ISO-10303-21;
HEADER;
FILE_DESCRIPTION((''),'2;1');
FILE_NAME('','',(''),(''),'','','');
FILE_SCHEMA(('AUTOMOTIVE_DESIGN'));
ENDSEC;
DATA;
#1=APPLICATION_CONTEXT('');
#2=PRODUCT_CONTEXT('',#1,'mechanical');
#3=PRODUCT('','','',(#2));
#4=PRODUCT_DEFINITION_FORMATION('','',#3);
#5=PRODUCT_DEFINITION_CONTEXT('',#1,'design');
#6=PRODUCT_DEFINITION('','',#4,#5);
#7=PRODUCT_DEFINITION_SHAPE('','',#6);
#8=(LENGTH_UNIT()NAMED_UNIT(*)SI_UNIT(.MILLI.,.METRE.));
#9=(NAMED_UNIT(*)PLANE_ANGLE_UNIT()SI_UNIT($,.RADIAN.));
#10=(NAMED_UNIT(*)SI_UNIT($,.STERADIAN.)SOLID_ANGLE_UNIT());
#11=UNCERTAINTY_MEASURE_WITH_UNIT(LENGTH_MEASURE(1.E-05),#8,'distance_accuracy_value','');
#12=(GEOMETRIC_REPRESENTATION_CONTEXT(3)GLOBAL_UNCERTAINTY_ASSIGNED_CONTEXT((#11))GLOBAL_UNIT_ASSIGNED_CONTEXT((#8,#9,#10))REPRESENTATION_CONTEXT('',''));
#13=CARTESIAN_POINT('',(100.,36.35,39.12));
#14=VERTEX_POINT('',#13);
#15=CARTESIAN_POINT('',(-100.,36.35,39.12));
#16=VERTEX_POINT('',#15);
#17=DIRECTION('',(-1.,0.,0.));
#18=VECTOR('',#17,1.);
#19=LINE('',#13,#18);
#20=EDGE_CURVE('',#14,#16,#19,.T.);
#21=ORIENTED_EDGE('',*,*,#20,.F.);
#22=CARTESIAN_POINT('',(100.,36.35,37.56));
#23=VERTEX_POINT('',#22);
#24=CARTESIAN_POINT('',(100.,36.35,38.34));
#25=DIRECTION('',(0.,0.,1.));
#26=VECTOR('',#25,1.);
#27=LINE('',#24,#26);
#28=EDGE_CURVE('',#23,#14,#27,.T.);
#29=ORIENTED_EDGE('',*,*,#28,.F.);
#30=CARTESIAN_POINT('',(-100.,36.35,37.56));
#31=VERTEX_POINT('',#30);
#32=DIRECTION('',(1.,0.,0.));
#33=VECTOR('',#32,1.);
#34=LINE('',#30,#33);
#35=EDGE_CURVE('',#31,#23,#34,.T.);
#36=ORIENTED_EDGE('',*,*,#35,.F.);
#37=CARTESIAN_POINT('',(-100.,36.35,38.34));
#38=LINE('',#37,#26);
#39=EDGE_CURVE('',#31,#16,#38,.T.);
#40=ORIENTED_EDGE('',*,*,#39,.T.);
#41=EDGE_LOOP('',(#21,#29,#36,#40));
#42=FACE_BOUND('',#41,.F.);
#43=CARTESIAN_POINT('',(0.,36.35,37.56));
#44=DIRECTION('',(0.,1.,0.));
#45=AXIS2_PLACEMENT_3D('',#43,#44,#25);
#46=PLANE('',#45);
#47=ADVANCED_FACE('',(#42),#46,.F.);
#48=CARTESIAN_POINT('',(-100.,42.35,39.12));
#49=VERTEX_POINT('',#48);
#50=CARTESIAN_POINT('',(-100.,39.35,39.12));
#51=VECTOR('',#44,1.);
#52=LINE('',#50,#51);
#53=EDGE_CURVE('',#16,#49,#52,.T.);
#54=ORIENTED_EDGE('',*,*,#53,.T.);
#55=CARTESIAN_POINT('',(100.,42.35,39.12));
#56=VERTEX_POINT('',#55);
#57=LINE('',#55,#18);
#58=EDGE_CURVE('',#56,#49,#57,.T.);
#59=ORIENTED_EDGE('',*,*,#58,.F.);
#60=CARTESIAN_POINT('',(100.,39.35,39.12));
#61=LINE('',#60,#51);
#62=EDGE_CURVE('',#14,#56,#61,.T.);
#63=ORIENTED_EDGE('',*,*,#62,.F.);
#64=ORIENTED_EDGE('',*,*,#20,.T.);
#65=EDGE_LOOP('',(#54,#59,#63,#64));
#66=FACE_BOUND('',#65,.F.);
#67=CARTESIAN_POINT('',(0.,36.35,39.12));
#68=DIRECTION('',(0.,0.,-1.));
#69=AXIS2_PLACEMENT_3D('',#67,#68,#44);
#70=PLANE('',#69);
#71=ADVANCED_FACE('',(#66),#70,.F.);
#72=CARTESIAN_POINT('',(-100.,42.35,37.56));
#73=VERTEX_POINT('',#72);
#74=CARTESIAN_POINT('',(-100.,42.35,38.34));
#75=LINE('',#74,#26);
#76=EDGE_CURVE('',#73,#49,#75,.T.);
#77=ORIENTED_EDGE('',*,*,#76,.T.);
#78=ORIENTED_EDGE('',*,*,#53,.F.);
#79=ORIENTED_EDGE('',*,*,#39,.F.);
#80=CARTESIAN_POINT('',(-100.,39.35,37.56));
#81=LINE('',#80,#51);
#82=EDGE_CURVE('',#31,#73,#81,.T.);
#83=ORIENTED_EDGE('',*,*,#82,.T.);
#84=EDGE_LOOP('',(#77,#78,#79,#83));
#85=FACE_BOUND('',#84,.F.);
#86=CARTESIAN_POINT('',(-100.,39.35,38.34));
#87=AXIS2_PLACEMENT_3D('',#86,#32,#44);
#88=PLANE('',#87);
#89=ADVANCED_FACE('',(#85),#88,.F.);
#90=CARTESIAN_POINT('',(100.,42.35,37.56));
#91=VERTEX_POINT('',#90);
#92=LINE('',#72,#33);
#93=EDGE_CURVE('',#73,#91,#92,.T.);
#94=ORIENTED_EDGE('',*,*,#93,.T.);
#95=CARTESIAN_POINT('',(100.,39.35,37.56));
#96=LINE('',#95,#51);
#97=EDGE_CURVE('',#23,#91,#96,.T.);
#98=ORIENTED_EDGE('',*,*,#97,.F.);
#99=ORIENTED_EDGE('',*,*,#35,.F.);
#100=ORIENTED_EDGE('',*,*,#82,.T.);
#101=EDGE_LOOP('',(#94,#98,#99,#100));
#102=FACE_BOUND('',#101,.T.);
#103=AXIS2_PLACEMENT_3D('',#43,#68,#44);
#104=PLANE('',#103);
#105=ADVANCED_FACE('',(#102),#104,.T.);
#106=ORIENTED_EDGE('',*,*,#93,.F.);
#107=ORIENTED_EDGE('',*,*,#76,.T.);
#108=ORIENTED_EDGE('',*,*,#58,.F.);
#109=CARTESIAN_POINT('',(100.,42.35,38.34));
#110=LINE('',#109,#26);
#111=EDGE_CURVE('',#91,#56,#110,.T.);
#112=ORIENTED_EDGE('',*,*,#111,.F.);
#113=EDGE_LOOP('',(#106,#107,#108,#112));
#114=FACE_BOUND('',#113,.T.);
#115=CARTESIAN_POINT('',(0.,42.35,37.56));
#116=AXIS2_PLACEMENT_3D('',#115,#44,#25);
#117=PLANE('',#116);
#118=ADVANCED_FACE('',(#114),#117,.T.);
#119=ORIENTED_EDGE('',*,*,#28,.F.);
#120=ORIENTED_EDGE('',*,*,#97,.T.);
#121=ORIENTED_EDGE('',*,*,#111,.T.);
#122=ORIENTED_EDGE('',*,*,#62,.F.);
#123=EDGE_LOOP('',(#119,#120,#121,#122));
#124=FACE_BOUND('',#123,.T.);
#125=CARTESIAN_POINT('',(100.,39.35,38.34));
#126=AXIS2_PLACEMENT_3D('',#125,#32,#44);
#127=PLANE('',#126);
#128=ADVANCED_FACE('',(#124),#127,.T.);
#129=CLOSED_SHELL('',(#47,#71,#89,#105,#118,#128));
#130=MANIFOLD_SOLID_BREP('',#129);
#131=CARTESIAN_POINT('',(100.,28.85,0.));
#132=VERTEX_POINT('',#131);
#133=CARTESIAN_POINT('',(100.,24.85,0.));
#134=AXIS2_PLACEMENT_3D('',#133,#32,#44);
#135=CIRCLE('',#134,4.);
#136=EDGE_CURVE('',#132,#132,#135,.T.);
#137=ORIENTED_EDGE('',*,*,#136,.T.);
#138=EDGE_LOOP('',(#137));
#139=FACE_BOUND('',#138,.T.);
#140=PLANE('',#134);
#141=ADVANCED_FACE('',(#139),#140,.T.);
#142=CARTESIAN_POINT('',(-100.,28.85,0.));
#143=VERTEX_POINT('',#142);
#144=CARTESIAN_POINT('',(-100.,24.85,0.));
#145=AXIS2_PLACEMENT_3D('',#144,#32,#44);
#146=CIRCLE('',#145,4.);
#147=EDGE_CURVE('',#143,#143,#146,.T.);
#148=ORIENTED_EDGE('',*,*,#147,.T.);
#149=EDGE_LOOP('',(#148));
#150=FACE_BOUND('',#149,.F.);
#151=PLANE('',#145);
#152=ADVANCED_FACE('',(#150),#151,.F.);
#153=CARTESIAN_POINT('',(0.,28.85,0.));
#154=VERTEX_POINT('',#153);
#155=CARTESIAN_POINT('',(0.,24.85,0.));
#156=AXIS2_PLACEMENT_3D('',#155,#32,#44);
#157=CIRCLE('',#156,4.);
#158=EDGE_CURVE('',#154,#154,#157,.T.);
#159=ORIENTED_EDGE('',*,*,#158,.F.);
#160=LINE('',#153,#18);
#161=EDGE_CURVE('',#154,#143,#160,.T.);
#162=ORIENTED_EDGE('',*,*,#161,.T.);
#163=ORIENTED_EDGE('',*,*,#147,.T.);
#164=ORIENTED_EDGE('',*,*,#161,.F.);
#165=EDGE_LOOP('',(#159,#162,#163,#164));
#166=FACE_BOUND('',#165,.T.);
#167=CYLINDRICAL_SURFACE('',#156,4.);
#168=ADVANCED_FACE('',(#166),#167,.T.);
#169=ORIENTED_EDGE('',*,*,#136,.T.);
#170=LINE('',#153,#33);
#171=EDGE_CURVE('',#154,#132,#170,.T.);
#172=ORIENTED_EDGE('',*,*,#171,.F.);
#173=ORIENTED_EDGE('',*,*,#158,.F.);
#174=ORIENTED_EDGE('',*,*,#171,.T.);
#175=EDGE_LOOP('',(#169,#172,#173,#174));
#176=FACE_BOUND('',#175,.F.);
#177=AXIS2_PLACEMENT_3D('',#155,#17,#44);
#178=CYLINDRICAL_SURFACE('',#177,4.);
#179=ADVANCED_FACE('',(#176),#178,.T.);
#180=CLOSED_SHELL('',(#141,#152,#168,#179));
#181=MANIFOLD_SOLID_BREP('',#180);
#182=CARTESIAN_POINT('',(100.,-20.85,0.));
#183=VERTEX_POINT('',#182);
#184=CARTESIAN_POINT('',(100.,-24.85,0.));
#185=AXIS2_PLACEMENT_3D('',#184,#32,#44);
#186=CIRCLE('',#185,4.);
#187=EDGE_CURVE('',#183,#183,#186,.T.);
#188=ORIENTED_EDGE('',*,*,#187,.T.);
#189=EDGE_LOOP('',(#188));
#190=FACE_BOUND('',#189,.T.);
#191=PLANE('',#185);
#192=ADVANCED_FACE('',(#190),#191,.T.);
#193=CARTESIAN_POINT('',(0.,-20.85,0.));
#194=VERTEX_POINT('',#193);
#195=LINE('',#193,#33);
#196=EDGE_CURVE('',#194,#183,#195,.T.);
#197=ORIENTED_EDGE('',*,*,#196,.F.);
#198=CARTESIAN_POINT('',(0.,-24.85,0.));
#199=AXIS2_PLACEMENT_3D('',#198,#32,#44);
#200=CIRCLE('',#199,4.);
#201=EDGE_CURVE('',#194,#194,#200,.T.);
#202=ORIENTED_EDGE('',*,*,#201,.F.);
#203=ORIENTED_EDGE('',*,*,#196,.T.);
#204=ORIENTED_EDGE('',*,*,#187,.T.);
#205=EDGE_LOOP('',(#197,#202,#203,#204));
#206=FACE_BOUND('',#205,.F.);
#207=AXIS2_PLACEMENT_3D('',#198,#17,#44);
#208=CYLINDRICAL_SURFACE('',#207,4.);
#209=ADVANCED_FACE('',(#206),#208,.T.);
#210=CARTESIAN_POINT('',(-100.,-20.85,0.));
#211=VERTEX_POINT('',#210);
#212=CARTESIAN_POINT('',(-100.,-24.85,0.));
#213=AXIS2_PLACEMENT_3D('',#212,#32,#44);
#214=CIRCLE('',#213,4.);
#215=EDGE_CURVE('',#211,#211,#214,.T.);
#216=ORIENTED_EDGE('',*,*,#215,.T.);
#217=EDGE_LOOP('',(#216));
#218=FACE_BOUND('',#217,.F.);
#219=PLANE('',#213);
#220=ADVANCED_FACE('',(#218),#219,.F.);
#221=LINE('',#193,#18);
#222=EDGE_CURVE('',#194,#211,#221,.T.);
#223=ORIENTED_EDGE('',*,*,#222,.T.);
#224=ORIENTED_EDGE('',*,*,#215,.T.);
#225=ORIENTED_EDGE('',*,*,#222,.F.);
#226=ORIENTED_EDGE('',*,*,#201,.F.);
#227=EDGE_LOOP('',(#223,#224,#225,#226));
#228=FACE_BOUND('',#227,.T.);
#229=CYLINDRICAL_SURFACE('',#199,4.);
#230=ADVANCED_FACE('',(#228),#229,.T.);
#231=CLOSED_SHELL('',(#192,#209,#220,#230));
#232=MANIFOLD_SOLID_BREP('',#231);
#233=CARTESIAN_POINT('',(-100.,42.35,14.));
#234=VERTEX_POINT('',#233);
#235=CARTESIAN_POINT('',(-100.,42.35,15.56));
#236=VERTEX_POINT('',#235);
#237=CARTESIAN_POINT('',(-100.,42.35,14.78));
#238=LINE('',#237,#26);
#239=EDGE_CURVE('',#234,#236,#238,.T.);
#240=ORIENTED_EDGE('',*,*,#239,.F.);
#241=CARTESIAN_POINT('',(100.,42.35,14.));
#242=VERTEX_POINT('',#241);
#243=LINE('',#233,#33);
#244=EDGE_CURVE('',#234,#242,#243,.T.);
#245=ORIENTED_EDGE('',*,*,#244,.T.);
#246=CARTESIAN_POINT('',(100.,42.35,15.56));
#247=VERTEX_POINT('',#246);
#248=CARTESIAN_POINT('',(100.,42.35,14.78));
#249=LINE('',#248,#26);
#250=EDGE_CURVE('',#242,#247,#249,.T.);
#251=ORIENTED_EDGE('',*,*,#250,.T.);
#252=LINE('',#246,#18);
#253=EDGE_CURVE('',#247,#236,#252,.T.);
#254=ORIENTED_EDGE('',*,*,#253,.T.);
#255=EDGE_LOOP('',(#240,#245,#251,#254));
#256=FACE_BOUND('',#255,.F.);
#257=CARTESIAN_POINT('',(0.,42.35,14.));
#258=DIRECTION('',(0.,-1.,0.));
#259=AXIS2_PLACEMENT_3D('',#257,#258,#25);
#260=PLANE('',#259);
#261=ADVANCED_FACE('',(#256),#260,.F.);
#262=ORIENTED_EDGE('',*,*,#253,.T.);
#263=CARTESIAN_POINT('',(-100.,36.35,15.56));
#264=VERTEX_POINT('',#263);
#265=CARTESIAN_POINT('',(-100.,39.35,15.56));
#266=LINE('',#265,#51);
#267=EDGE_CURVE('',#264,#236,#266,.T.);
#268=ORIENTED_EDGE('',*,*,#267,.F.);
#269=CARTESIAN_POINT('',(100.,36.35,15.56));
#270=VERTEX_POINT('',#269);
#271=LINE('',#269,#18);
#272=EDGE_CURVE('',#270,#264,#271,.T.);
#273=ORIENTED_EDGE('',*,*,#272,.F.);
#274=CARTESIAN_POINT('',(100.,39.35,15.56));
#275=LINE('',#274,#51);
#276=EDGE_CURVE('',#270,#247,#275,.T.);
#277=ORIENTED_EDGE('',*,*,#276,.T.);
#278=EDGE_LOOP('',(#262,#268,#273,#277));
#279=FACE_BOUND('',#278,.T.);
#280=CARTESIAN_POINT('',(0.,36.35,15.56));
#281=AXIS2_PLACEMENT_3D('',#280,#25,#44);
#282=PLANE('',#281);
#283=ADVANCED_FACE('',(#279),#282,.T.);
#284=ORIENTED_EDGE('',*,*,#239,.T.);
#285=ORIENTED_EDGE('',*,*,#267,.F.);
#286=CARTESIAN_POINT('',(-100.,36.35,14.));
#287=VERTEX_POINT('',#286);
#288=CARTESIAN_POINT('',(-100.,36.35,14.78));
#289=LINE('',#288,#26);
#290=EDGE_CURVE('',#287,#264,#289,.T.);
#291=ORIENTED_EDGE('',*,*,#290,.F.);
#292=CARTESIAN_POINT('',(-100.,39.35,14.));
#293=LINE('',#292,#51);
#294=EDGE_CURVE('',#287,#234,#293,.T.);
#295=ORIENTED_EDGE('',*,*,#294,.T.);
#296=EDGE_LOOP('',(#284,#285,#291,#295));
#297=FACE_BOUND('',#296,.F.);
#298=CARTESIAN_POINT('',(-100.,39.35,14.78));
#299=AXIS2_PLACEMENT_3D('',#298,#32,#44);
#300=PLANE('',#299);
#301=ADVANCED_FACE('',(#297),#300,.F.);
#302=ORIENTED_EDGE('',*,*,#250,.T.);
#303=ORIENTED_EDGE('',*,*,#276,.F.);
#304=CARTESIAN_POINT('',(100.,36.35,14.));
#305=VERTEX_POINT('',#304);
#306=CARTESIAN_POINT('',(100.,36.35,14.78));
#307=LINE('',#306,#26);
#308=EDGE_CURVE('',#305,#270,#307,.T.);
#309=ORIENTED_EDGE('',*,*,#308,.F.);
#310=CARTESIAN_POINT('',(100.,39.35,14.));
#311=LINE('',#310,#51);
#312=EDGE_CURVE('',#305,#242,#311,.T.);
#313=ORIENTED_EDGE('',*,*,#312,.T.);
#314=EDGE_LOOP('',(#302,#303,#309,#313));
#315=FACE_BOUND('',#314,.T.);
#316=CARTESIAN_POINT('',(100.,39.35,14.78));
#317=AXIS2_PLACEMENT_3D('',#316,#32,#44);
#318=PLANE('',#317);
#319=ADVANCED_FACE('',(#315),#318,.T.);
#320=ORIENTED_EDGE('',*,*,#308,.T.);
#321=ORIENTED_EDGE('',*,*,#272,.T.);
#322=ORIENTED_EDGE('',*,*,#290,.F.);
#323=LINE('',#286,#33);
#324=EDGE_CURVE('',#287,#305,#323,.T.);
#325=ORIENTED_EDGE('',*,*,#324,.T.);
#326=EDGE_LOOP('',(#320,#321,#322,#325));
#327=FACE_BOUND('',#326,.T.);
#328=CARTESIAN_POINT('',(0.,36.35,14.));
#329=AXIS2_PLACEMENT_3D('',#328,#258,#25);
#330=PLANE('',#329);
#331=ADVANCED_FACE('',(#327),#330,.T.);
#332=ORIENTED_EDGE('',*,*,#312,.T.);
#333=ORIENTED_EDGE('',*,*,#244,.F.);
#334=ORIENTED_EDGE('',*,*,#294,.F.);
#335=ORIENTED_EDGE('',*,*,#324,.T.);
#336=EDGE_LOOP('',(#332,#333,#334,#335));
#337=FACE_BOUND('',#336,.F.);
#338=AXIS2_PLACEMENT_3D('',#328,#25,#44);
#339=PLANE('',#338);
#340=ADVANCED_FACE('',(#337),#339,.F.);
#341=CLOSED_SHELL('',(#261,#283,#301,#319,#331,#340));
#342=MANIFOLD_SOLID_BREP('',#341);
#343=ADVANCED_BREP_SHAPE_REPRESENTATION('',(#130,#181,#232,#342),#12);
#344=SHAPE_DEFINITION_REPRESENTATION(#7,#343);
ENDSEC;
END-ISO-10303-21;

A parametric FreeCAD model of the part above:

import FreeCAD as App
import Part
import Sketcher
Q = App.Units.Quantity


def add_polygon(sketch, points):
    """Adds a closed chain of lines whose ends are joined by coincident constraints."""
    first, n = sketch.GeometryCount, len(points)
    for a, b in zip(points, points[1:] + points[:1]):
        sketch.addGeometry(Part.LineSegment(App.Vector(*a, 0), App.Vector(*b, 0)), False)
    for i in range(n):
        sketch.addConstraint(Sketcher.Constraint("Coincident", first + i, 2, first + (i + 1) % n, 1))

doc = App.newDocument("Part")
body = doc.addObject("PartDesign::Body", "Body")
body.AllowCompound = True

sketch1 = body.newObject("Sketcher::SketchObject", "Sketch")
sketch1.AttachmentSupport = (doc.getObject("YZ_Plane"), [""])
sketch1.MapMode = "FlatFace"
sketch1.addGeometry(Part.Circle(App.Vector(-24.9, 0, 0), App.Vector(0, 0, 1), 4), False)
sketch1.addGeometry(Part.Circle(App.Vector(24.9, 0, 0), App.Vector(0, 0, 1), 4), False)
add_polygon(sketch1, [(36.4, 15.6), (36.4, 14), (42.4, 14), (42.4, 15.6)])
add_polygon(sketch1, [(36.4, 39.1), (36.4, 37.6), (42.4, 37.6), (42.4, 39.1)])
sketch1.addConstraint([
    Sketcher.Constraint("Vertical", 2),
    Sketcher.Constraint("Horizontal", 3),
    Sketcher.Constraint("Vertical", 4),
    Sketcher.Constraint("Horizontal", 5),
    Sketcher.Constraint("Vertical", 6),
    Sketcher.Constraint("Horizontal", 7),
    Sketcher.Constraint("Vertical", 8),
    Sketcher.Constraint("Horizontal", 9),
    Sketcher.Constraint("Equal", 0, 1),
    Sketcher.Constraint("Symmetric", 0, 3, 1, 3, -1, 1),
    Sketcher.Constraint("PointOnObject", 0, 3, -1),
    Sketcher.Constraint("Vertical", 5, 2, 6, 2),
    Sketcher.Constraint("Vertical", 4, 2, 7, 2),
    Sketcher.Constraint("Equal", 4, 6),
    Sketcher.Constraint("Diameter", 0, Q("8 mm")),
    Sketcher.Constraint("DistanceX", 3, 1, 3, 2, Q("6 mm")),
    Sketcher.Constraint("DistanceY", -1, 1, 2, 2, Q("14 mm")),
    Sketcher.Constraint("DistanceY", 5, 2, 6, 2, Q("22 mm")),
    Sketcher.Constraint("DistanceY", 2, 2, 2, 1, Q("1.56 mm")),
    Sketcher.Constraint("DistanceX", 0, 3, 1, 3, Q("49.7 mm")),
    Sketcher.Constraint("DistanceX", 1, 3, 2, 2, Q("11.5 mm")),
])
pad1 = body.newObject("PartDesign::Pad", "Pad")
pad1.Profile = sketch1
pad1.Length = 200
pad1.Midplane = True

doc.recompute()
